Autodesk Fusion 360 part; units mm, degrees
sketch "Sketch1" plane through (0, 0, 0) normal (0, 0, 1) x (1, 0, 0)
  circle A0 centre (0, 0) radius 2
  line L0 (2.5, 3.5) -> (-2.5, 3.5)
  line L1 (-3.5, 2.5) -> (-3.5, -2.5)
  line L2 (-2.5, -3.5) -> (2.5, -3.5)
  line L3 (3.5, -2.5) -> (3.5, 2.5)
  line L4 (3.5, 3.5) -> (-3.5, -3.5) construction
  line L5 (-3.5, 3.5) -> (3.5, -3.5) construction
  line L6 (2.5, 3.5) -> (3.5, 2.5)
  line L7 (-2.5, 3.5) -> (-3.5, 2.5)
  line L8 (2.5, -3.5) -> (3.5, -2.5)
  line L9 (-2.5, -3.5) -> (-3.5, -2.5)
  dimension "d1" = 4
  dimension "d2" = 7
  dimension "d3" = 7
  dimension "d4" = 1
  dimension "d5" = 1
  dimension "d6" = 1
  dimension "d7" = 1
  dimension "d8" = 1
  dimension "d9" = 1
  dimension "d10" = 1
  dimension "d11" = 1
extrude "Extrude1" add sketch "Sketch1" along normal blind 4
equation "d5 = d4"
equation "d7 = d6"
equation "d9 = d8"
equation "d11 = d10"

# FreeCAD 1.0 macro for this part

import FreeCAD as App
import Part
import Sketcher
from FreeCAD import Vector


def add_polygon(sketch, points):
    """Adds a closed chain of lines whose ends are joined by coincident constraints."""
    first, n = sketch.GeometryCount, len(points)
    for a, b in zip(points, points[1:] + points[:1]):
        sketch.addGeometry(Part.LineSegment(App.Vector(*a, 0), App.Vector(*b, 0)), False)
    for i in range(n):
        sketch.addConstraint(Sketcher.Constraint("Coincident", first + i, 2, first + (i + 1) % n, 1))

doc = App.newDocument("Part")
body = doc.addObject("PartDesign::Body", "Body")

sketch1 = body.newObject("Sketcher::SketchObject", "Sketch")
sketch1.AttachmentSupport = (doc.getObject("XY_Plane"), [""])
sketch1.MapMode = "FlatFace"
add_polygon(sketch1, [(3.5, 2.5), (2.5, 3.5), (-2.5, 3.5), (-3.5, 2.5), (-3.5, -2.5), (-2.5, -3.5), (2.5, -3.5), (3.5, -2.5)])
sketch1.addGeometry(Part.Circle(Vector(0, 0, 0), Vector(0, 0, 1), 2), False)
sketch1.addConstraint([
    Sketcher.Constraint("Horizontal", 1),
    Sketcher.Constraint("Vertical", 3),
    Sketcher.Constraint("Horizontal", 5),
    Sketcher.Constraint("Vertical", 7),
    Sketcher.Constraint("Coincident", 8, 3, -1, 1),
    Sketcher.Constraint("Symmetric", 0, 2, 4, 2, -1, 1),
    Sketcher.Constraint("Symmetric", 2, 2, 6, 2, -1, 1),
    Sketcher.Constraint("Perpendicular", 0, 2),
    Sketcher.Constraint("Perpendicular", 2, 4),
    Sketcher.Constraint("Perpendicular", 4, 6),
    Sketcher.Constraint("Horizontal", 3, 2, 6, 2),
    Sketcher.Constraint("Vertical", 1, 2, 4, 2),
    Sketcher.Constraint("Equal", 5, 3),
    Sketcher.Constraint("Diameter", 8, 4.0),
    Sketcher.Constraint("DistanceX", 2, 2, 1, 2, 1.0),
    Sketcher.Constraint("DistanceY", 4, 2, 1, 2, 7.0),
])
pad1 = body.newObject("PartDesign::Pad", "Pad")
pad1.Profile = sketch1
pad1.Length = 4

doc.recompute()
